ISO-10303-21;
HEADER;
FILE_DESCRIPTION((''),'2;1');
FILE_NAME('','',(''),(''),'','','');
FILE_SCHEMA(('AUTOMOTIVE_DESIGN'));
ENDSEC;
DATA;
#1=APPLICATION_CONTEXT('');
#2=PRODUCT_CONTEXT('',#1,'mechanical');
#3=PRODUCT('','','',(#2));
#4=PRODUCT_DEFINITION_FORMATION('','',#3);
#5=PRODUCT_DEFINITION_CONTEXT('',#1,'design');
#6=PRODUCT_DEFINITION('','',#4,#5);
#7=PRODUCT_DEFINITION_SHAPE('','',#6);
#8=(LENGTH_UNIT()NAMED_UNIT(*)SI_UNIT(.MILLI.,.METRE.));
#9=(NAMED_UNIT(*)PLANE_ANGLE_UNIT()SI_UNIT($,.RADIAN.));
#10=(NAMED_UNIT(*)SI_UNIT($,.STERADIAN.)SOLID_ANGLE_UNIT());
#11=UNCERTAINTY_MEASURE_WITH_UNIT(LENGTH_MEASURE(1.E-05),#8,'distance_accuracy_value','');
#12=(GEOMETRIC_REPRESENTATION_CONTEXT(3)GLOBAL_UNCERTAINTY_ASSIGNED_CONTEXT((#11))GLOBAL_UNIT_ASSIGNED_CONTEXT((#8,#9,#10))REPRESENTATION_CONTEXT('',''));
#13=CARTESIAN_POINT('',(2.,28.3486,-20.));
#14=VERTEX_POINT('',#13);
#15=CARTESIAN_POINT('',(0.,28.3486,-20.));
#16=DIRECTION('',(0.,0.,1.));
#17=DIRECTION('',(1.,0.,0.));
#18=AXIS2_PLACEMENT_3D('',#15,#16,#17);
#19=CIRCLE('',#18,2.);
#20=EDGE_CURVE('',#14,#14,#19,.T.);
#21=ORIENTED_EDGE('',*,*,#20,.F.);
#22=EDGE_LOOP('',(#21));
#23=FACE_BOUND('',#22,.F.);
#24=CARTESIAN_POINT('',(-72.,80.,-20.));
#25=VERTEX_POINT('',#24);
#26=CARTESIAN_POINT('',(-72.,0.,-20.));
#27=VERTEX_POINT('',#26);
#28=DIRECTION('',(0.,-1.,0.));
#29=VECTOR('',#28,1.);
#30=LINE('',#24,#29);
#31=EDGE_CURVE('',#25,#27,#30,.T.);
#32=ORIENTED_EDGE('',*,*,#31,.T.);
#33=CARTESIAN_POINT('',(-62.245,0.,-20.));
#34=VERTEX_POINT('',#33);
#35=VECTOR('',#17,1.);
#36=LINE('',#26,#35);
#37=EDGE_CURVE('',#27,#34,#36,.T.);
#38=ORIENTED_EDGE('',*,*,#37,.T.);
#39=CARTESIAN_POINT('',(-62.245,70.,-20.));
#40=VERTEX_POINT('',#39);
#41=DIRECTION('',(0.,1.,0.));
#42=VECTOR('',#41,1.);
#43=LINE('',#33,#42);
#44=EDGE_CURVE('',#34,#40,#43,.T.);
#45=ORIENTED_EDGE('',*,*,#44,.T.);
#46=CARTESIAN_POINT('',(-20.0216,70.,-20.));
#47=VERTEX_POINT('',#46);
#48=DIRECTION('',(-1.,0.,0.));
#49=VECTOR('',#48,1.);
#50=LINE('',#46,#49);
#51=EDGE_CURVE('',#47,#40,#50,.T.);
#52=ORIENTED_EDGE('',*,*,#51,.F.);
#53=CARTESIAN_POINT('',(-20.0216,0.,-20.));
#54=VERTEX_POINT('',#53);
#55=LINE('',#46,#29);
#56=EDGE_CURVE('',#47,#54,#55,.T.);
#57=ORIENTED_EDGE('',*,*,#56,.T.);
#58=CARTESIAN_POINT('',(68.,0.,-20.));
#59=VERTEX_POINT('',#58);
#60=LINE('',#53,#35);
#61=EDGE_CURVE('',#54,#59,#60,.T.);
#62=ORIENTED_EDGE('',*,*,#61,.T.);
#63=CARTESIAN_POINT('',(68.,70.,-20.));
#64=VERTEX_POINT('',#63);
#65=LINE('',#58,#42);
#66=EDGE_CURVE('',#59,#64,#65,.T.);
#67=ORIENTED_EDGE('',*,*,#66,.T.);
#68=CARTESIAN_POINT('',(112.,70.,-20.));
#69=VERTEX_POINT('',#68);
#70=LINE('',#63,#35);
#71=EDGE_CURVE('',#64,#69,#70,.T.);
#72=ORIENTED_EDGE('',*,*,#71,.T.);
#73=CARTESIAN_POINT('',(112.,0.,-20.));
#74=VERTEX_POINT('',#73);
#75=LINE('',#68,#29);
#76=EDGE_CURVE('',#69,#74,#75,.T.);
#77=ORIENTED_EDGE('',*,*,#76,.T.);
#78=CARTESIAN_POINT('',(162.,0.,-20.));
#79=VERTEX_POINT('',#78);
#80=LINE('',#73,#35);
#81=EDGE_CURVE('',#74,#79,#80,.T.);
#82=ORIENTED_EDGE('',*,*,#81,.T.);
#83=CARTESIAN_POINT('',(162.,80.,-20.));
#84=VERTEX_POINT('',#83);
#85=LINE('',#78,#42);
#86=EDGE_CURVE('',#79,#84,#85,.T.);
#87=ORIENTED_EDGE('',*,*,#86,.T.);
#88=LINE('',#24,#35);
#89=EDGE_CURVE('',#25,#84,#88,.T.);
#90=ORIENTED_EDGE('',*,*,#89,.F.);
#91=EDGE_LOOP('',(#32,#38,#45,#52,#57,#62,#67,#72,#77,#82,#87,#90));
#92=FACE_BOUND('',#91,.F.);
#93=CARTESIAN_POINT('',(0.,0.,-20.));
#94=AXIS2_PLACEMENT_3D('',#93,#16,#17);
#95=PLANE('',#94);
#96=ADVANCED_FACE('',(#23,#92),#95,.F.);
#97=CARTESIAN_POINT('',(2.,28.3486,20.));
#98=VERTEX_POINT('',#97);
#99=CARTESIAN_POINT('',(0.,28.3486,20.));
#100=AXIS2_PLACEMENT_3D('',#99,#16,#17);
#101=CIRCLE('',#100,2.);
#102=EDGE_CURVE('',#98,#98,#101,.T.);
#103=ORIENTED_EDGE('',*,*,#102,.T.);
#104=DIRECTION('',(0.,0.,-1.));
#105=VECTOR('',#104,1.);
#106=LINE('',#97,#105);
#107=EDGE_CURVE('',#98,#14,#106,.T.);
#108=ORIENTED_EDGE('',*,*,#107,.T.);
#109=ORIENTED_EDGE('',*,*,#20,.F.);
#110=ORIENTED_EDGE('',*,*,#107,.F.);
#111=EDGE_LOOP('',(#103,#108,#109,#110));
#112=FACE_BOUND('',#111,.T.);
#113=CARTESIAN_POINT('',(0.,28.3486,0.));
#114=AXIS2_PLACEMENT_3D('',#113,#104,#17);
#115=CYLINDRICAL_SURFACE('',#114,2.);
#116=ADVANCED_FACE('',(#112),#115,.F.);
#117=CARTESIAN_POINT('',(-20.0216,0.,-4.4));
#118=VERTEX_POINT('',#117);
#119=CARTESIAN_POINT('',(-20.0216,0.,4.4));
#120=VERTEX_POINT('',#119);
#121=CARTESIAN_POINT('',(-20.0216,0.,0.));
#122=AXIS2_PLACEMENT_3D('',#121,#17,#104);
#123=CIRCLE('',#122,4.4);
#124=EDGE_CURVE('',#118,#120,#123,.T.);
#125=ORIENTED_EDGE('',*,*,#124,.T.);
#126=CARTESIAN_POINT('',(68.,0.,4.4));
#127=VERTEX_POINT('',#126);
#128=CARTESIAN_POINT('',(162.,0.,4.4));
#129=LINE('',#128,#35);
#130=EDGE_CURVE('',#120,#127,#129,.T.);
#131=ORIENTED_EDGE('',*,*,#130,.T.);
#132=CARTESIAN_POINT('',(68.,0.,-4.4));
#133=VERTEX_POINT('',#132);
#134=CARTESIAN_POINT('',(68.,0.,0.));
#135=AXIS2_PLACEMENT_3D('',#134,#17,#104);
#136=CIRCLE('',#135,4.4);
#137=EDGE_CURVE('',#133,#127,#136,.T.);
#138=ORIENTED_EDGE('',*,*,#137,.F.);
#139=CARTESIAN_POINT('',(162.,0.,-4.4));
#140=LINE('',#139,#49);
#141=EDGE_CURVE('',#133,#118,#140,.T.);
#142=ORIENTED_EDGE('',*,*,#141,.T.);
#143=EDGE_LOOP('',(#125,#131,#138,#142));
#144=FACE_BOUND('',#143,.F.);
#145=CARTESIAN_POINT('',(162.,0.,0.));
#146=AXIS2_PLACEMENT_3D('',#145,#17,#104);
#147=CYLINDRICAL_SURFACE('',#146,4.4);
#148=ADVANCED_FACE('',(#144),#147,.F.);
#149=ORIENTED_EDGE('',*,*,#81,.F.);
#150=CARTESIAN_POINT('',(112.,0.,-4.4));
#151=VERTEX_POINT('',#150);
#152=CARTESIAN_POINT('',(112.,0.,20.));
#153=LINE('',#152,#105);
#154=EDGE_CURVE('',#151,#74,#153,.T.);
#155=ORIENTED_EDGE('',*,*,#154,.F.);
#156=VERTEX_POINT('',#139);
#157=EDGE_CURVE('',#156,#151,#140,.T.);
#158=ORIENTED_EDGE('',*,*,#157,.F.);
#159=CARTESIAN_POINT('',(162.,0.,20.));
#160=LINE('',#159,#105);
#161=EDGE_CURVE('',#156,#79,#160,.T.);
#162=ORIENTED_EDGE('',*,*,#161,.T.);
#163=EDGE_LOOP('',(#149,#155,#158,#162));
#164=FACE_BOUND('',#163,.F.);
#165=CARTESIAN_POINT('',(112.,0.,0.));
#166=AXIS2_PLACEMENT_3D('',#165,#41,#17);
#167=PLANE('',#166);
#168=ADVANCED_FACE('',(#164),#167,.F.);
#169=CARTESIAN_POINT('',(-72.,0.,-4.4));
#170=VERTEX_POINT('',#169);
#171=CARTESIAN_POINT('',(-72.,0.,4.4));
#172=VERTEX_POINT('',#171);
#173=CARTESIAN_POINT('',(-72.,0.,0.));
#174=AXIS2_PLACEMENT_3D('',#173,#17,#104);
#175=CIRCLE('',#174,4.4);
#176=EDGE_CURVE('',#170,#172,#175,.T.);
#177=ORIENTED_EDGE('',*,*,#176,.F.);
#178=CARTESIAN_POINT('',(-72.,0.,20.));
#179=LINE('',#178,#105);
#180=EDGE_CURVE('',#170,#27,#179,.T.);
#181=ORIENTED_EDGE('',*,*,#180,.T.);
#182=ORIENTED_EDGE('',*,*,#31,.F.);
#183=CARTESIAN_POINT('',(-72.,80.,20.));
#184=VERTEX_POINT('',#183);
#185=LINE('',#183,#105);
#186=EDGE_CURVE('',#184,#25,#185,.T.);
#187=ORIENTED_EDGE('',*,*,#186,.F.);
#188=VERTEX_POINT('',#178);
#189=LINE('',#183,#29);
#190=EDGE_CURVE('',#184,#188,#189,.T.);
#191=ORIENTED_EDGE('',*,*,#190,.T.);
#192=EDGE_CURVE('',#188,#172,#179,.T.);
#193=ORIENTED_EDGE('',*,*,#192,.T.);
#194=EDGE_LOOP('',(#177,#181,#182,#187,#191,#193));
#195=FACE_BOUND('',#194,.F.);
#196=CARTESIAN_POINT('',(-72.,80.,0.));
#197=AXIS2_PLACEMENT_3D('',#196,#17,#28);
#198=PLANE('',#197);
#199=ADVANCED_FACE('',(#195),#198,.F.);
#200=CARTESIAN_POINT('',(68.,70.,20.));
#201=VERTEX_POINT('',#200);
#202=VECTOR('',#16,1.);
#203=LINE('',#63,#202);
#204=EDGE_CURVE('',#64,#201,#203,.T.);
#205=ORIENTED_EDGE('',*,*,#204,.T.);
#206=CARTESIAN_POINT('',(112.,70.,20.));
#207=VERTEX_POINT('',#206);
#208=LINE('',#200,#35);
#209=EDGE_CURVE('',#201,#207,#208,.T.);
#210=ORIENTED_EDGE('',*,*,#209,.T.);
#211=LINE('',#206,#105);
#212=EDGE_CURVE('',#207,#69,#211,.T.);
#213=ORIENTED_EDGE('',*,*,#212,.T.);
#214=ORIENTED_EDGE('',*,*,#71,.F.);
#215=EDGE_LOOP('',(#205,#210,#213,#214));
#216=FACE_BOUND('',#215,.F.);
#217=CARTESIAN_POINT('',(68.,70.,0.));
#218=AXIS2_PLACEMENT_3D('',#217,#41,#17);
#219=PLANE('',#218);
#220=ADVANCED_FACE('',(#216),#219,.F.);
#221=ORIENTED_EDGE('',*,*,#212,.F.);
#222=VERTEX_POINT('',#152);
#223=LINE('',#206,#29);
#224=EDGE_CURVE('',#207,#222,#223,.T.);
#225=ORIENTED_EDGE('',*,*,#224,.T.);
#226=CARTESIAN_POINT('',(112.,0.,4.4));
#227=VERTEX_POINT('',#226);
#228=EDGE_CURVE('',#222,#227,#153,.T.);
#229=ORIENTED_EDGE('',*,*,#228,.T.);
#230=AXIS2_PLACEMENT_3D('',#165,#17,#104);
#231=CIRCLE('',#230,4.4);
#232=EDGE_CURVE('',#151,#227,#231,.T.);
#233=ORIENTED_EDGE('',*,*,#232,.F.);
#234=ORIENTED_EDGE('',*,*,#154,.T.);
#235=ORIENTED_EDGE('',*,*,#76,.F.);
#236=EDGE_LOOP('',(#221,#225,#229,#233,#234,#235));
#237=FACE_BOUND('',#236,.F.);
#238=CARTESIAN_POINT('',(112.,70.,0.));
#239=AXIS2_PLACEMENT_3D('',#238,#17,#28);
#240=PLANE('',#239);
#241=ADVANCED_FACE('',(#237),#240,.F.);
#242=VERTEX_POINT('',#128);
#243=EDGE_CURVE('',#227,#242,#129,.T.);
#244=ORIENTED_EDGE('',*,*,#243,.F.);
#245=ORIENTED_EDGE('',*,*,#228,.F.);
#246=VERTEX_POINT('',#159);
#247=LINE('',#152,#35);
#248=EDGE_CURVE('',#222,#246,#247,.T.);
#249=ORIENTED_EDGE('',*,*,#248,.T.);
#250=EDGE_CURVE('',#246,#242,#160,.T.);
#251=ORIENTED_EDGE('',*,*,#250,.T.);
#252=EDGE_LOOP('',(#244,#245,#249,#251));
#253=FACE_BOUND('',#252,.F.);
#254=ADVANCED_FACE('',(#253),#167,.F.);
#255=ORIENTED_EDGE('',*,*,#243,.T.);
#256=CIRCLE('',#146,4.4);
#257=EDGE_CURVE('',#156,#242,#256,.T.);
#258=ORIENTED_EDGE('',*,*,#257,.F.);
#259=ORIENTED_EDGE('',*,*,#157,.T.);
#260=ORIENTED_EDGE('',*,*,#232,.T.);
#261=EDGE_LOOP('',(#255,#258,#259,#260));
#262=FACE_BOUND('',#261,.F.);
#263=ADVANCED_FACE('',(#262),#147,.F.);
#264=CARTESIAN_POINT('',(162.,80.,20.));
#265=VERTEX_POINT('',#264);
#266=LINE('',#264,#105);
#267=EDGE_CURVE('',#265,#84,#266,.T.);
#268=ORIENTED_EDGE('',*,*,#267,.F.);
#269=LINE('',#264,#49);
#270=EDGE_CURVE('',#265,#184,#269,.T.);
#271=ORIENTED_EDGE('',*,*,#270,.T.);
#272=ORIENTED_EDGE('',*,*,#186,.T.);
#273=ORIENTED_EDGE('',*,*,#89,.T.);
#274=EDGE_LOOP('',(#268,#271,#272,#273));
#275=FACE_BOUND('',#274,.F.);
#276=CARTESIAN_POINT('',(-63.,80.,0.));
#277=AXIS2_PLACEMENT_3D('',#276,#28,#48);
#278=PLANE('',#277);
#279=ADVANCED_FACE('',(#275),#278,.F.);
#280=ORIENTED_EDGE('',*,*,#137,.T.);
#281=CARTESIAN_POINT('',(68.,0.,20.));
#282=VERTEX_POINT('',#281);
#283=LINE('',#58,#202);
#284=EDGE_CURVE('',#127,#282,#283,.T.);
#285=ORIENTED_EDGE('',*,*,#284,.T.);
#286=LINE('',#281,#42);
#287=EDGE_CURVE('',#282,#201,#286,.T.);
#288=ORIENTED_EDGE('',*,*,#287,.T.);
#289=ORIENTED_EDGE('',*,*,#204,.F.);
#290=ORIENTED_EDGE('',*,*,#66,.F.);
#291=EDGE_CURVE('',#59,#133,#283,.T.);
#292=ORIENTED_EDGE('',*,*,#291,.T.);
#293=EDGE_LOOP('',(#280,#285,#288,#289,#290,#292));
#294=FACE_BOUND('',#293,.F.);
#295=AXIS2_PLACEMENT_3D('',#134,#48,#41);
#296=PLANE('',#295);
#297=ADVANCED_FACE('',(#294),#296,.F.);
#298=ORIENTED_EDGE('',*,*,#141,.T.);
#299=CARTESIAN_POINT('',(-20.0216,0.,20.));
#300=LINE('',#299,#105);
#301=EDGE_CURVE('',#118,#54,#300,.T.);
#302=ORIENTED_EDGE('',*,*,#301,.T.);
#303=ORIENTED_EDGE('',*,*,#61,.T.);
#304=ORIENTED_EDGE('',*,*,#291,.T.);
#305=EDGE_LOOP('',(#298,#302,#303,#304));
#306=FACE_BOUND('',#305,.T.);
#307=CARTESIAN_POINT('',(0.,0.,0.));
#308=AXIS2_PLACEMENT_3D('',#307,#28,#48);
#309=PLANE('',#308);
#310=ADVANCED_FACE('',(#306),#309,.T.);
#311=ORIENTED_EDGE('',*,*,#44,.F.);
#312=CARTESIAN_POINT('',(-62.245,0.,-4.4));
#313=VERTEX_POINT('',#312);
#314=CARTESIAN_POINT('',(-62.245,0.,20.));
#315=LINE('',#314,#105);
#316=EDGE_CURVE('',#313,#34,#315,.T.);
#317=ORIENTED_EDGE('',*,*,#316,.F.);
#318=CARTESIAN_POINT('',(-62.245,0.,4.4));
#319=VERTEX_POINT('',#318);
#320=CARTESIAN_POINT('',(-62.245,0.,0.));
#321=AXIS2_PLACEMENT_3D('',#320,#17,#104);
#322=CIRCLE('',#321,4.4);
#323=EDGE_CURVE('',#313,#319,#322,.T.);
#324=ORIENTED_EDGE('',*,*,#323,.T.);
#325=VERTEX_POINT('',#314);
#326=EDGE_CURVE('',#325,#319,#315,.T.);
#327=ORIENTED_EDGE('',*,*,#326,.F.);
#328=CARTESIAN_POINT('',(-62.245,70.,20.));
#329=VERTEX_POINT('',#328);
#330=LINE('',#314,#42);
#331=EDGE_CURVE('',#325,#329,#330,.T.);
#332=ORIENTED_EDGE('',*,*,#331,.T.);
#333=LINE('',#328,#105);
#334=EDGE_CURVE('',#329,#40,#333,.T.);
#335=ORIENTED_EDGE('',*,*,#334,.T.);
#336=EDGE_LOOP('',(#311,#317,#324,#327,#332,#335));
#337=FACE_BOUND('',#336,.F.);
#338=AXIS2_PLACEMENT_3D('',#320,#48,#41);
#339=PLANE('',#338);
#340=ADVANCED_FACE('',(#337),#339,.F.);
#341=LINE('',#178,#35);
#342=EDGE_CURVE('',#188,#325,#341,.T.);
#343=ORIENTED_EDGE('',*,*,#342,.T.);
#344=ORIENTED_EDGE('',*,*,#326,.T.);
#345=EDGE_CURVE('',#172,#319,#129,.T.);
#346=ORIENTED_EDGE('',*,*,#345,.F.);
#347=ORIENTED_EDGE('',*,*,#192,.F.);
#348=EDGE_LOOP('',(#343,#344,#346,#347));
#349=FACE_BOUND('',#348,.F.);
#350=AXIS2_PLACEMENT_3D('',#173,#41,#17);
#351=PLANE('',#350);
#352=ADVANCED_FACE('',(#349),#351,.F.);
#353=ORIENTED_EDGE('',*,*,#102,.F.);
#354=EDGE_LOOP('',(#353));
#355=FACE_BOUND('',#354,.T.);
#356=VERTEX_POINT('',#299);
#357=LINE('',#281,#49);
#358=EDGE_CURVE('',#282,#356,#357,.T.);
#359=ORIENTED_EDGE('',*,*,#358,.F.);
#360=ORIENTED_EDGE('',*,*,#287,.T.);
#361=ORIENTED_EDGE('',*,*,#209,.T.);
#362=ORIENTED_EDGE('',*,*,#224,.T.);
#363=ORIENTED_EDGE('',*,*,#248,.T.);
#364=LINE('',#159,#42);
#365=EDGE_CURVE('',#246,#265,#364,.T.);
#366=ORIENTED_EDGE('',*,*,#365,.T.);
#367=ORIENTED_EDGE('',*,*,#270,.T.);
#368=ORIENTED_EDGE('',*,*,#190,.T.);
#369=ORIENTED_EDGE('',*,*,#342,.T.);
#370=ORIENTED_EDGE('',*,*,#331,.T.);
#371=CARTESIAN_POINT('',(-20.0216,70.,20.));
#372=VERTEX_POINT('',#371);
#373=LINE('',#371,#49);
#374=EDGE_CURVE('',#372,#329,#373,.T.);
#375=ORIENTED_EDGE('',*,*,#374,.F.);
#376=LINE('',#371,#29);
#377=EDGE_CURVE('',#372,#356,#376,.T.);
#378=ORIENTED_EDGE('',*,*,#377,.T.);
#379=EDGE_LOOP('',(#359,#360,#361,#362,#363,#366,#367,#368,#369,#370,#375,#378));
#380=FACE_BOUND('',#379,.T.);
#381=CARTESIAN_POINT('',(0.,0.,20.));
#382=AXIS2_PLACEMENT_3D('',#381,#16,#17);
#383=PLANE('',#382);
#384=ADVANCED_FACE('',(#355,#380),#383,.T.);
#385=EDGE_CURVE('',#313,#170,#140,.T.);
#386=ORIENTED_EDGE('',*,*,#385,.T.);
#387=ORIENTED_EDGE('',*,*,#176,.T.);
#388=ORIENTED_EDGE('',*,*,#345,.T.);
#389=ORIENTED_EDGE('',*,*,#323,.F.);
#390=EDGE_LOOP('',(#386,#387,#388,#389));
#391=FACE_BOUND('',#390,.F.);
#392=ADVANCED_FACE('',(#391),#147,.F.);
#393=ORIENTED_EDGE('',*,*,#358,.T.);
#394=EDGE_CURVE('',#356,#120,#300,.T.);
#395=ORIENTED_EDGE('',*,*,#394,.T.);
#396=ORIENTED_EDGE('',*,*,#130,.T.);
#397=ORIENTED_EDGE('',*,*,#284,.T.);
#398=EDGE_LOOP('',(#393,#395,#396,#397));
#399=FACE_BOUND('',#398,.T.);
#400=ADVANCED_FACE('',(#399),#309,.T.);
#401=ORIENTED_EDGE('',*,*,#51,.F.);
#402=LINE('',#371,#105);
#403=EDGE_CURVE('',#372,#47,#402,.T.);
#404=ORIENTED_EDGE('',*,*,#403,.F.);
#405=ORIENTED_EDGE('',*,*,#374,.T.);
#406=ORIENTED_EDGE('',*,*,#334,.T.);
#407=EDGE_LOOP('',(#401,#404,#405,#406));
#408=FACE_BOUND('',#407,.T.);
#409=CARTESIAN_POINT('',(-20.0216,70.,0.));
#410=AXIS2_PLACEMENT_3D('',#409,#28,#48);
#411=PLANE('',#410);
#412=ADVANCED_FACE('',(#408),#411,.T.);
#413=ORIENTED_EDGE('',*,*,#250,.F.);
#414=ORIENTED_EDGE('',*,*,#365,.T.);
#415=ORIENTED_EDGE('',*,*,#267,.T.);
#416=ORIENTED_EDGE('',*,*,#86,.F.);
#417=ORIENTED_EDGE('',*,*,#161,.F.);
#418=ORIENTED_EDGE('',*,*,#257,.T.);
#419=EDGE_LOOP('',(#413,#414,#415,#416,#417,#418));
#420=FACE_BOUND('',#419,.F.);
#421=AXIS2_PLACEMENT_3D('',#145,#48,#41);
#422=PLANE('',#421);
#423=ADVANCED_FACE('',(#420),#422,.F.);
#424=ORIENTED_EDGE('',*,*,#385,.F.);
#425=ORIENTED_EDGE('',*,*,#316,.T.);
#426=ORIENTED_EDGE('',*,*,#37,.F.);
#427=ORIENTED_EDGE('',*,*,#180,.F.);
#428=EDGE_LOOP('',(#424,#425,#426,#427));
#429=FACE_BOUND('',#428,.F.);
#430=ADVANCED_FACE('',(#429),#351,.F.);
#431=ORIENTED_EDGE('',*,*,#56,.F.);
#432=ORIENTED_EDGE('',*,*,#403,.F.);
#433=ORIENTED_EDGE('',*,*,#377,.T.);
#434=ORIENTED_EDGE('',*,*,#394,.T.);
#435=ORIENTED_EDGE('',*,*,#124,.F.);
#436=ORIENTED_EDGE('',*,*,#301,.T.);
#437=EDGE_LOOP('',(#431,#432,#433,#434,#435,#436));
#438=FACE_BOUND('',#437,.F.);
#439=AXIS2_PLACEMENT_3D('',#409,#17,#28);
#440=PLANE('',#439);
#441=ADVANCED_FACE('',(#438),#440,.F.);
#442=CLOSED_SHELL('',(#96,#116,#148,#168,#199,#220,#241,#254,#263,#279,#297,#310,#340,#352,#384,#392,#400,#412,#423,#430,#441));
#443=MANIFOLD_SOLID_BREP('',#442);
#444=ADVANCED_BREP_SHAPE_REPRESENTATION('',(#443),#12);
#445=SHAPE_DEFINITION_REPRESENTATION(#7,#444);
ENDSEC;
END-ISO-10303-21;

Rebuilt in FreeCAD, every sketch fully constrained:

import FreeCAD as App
import Part
import Sketcher
from FreeCAD import Vector


def add_polygon(sketch, points):
    """Adds a closed chain of lines whose ends are joined by coincident constraints."""
    first, n = sketch.GeometryCount, len(points)
    for a, b in zip(points, points[1:] + points[:1]):
        sketch.addGeometry(Part.LineSegment(App.Vector(*a, 0), App.Vector(*b, 0)), False)
    for i in range(n):
        sketch.addConstraint(Sketcher.Constraint("Coincident", first + i, 2, first + (i + 1) % n, 1))

doc = App.newDocument("Part")
body = doc.addObject("PartDesign::Body", "Body")

sketch1 = body.newObject("Sketcher::SketchObject", "Sketch")
sketch1.AttachmentSupport = (doc.getObject("XY_Plane"), [""])
sketch1.MapMode = "FlatFace"
add_polygon(sketch1, [(-20, 0), (68, 0), (68, 70), (112, 70), (112, 0), (162, 0), (162, 80), (-72, 80), (-72, 0), (-62.2, 0), (-62.2, 70), (-20, 70)])
sketch1.addGeometry(Part.Circle(Vector(0, 28.3, 0), Vector(0, 0, 1), 2), False)
sketch1.addConstraint([
    Sketcher.Constraint("Horizontal", 0),
    Sketcher.Constraint("Vertical", 1),
    Sketcher.Constraint("Horizontal", 2),
    Sketcher.Constraint("Vertical", 3),
    Sketcher.Constraint("Horizontal", 4),
    Sketcher.Constraint("Vertical", 5),
    Sketcher.Constraint("Horizontal", 6),
    Sketcher.Constraint("Vertical", 7),
    Sketcher.Constraint("Horizontal", 8),
    Sketcher.Constraint("Vertical", 9),
    Sketcher.Constraint("Horizontal", 10),
    Sketcher.Constraint("Vertical", 11),
    Sketcher.Constraint("PointOnObject", 12, 3, -2),
    Sketcher.Constraint("PointOnObject", 0, 2, -1),
    Sketcher.Constraint("PointOnObject", 3, 2, -1),
    Sketcher.Constraint("PointOnObject", 7, 2, -1),
    Sketcher.Constraint("Horizontal", 2, 2, 9, 2),
    Sketcher.Constraint("Diameter", 12, 4.0),
    Sketcher.Constraint("DistanceX", 2, 1, 2, 2, 44.0),
    Sketcher.Constraint("DistanceX", 4, 1, 4, 2, 50.0),
    Sketcher.Constraint("DistanceX", 6, 2, 6, 1, 234.0),
    Sketcher.Constraint("DistanceY", 1, 1, 1, 2, 70.0),
    Sketcher.Constraint("DistanceY", 5, 1, 5, 2, 80.0),
    Sketcher.Constraint("DistanceX", -1, 1, 0, 2, 68.0),
    Sketcher.Constraint("DistanceX", 8, 1, 8, 2, 9.755),
    Sketcher.Constraint("DistanceX", 0, 1, 0, 2, 88.0216),
    Sketcher.Constraint("DistanceY", -1, 1, 12, 3, 28.3486),
])
pad1 = body.newObject("PartDesign::Pad", "Pad")
pad1.Profile = sketch1
pad1.Length = 40
pad1.Midplane = True

sketch2 = body.newObject("Sketcher::SketchObject", "Sketch001")
sketch2.AttachmentSupport = (doc.getObject("YZ_Plane"), [""])
sketch2.MapMode = "FlatFace"
sketch2.AttachmentOffset = App.Placement(Vector(0, 0, 162), App.Rotation())
sketch2.addGeometry(Part.Circle(Vector(0, 0, 0), Vector(0, 0, 1), 4.4), False)
sketch2.addConstraint([
    Sketcher.Constraint("Coincident", 0, 3, -1, 1),
    Sketcher.Constraint("Diameter", 0, 8.8),
])
pocket1 = body.newObject("PartDesign::Pocket", "Pocket")
pocket1.Profile = sketch2
pocket1.Length = 1600

doc.recompute()
